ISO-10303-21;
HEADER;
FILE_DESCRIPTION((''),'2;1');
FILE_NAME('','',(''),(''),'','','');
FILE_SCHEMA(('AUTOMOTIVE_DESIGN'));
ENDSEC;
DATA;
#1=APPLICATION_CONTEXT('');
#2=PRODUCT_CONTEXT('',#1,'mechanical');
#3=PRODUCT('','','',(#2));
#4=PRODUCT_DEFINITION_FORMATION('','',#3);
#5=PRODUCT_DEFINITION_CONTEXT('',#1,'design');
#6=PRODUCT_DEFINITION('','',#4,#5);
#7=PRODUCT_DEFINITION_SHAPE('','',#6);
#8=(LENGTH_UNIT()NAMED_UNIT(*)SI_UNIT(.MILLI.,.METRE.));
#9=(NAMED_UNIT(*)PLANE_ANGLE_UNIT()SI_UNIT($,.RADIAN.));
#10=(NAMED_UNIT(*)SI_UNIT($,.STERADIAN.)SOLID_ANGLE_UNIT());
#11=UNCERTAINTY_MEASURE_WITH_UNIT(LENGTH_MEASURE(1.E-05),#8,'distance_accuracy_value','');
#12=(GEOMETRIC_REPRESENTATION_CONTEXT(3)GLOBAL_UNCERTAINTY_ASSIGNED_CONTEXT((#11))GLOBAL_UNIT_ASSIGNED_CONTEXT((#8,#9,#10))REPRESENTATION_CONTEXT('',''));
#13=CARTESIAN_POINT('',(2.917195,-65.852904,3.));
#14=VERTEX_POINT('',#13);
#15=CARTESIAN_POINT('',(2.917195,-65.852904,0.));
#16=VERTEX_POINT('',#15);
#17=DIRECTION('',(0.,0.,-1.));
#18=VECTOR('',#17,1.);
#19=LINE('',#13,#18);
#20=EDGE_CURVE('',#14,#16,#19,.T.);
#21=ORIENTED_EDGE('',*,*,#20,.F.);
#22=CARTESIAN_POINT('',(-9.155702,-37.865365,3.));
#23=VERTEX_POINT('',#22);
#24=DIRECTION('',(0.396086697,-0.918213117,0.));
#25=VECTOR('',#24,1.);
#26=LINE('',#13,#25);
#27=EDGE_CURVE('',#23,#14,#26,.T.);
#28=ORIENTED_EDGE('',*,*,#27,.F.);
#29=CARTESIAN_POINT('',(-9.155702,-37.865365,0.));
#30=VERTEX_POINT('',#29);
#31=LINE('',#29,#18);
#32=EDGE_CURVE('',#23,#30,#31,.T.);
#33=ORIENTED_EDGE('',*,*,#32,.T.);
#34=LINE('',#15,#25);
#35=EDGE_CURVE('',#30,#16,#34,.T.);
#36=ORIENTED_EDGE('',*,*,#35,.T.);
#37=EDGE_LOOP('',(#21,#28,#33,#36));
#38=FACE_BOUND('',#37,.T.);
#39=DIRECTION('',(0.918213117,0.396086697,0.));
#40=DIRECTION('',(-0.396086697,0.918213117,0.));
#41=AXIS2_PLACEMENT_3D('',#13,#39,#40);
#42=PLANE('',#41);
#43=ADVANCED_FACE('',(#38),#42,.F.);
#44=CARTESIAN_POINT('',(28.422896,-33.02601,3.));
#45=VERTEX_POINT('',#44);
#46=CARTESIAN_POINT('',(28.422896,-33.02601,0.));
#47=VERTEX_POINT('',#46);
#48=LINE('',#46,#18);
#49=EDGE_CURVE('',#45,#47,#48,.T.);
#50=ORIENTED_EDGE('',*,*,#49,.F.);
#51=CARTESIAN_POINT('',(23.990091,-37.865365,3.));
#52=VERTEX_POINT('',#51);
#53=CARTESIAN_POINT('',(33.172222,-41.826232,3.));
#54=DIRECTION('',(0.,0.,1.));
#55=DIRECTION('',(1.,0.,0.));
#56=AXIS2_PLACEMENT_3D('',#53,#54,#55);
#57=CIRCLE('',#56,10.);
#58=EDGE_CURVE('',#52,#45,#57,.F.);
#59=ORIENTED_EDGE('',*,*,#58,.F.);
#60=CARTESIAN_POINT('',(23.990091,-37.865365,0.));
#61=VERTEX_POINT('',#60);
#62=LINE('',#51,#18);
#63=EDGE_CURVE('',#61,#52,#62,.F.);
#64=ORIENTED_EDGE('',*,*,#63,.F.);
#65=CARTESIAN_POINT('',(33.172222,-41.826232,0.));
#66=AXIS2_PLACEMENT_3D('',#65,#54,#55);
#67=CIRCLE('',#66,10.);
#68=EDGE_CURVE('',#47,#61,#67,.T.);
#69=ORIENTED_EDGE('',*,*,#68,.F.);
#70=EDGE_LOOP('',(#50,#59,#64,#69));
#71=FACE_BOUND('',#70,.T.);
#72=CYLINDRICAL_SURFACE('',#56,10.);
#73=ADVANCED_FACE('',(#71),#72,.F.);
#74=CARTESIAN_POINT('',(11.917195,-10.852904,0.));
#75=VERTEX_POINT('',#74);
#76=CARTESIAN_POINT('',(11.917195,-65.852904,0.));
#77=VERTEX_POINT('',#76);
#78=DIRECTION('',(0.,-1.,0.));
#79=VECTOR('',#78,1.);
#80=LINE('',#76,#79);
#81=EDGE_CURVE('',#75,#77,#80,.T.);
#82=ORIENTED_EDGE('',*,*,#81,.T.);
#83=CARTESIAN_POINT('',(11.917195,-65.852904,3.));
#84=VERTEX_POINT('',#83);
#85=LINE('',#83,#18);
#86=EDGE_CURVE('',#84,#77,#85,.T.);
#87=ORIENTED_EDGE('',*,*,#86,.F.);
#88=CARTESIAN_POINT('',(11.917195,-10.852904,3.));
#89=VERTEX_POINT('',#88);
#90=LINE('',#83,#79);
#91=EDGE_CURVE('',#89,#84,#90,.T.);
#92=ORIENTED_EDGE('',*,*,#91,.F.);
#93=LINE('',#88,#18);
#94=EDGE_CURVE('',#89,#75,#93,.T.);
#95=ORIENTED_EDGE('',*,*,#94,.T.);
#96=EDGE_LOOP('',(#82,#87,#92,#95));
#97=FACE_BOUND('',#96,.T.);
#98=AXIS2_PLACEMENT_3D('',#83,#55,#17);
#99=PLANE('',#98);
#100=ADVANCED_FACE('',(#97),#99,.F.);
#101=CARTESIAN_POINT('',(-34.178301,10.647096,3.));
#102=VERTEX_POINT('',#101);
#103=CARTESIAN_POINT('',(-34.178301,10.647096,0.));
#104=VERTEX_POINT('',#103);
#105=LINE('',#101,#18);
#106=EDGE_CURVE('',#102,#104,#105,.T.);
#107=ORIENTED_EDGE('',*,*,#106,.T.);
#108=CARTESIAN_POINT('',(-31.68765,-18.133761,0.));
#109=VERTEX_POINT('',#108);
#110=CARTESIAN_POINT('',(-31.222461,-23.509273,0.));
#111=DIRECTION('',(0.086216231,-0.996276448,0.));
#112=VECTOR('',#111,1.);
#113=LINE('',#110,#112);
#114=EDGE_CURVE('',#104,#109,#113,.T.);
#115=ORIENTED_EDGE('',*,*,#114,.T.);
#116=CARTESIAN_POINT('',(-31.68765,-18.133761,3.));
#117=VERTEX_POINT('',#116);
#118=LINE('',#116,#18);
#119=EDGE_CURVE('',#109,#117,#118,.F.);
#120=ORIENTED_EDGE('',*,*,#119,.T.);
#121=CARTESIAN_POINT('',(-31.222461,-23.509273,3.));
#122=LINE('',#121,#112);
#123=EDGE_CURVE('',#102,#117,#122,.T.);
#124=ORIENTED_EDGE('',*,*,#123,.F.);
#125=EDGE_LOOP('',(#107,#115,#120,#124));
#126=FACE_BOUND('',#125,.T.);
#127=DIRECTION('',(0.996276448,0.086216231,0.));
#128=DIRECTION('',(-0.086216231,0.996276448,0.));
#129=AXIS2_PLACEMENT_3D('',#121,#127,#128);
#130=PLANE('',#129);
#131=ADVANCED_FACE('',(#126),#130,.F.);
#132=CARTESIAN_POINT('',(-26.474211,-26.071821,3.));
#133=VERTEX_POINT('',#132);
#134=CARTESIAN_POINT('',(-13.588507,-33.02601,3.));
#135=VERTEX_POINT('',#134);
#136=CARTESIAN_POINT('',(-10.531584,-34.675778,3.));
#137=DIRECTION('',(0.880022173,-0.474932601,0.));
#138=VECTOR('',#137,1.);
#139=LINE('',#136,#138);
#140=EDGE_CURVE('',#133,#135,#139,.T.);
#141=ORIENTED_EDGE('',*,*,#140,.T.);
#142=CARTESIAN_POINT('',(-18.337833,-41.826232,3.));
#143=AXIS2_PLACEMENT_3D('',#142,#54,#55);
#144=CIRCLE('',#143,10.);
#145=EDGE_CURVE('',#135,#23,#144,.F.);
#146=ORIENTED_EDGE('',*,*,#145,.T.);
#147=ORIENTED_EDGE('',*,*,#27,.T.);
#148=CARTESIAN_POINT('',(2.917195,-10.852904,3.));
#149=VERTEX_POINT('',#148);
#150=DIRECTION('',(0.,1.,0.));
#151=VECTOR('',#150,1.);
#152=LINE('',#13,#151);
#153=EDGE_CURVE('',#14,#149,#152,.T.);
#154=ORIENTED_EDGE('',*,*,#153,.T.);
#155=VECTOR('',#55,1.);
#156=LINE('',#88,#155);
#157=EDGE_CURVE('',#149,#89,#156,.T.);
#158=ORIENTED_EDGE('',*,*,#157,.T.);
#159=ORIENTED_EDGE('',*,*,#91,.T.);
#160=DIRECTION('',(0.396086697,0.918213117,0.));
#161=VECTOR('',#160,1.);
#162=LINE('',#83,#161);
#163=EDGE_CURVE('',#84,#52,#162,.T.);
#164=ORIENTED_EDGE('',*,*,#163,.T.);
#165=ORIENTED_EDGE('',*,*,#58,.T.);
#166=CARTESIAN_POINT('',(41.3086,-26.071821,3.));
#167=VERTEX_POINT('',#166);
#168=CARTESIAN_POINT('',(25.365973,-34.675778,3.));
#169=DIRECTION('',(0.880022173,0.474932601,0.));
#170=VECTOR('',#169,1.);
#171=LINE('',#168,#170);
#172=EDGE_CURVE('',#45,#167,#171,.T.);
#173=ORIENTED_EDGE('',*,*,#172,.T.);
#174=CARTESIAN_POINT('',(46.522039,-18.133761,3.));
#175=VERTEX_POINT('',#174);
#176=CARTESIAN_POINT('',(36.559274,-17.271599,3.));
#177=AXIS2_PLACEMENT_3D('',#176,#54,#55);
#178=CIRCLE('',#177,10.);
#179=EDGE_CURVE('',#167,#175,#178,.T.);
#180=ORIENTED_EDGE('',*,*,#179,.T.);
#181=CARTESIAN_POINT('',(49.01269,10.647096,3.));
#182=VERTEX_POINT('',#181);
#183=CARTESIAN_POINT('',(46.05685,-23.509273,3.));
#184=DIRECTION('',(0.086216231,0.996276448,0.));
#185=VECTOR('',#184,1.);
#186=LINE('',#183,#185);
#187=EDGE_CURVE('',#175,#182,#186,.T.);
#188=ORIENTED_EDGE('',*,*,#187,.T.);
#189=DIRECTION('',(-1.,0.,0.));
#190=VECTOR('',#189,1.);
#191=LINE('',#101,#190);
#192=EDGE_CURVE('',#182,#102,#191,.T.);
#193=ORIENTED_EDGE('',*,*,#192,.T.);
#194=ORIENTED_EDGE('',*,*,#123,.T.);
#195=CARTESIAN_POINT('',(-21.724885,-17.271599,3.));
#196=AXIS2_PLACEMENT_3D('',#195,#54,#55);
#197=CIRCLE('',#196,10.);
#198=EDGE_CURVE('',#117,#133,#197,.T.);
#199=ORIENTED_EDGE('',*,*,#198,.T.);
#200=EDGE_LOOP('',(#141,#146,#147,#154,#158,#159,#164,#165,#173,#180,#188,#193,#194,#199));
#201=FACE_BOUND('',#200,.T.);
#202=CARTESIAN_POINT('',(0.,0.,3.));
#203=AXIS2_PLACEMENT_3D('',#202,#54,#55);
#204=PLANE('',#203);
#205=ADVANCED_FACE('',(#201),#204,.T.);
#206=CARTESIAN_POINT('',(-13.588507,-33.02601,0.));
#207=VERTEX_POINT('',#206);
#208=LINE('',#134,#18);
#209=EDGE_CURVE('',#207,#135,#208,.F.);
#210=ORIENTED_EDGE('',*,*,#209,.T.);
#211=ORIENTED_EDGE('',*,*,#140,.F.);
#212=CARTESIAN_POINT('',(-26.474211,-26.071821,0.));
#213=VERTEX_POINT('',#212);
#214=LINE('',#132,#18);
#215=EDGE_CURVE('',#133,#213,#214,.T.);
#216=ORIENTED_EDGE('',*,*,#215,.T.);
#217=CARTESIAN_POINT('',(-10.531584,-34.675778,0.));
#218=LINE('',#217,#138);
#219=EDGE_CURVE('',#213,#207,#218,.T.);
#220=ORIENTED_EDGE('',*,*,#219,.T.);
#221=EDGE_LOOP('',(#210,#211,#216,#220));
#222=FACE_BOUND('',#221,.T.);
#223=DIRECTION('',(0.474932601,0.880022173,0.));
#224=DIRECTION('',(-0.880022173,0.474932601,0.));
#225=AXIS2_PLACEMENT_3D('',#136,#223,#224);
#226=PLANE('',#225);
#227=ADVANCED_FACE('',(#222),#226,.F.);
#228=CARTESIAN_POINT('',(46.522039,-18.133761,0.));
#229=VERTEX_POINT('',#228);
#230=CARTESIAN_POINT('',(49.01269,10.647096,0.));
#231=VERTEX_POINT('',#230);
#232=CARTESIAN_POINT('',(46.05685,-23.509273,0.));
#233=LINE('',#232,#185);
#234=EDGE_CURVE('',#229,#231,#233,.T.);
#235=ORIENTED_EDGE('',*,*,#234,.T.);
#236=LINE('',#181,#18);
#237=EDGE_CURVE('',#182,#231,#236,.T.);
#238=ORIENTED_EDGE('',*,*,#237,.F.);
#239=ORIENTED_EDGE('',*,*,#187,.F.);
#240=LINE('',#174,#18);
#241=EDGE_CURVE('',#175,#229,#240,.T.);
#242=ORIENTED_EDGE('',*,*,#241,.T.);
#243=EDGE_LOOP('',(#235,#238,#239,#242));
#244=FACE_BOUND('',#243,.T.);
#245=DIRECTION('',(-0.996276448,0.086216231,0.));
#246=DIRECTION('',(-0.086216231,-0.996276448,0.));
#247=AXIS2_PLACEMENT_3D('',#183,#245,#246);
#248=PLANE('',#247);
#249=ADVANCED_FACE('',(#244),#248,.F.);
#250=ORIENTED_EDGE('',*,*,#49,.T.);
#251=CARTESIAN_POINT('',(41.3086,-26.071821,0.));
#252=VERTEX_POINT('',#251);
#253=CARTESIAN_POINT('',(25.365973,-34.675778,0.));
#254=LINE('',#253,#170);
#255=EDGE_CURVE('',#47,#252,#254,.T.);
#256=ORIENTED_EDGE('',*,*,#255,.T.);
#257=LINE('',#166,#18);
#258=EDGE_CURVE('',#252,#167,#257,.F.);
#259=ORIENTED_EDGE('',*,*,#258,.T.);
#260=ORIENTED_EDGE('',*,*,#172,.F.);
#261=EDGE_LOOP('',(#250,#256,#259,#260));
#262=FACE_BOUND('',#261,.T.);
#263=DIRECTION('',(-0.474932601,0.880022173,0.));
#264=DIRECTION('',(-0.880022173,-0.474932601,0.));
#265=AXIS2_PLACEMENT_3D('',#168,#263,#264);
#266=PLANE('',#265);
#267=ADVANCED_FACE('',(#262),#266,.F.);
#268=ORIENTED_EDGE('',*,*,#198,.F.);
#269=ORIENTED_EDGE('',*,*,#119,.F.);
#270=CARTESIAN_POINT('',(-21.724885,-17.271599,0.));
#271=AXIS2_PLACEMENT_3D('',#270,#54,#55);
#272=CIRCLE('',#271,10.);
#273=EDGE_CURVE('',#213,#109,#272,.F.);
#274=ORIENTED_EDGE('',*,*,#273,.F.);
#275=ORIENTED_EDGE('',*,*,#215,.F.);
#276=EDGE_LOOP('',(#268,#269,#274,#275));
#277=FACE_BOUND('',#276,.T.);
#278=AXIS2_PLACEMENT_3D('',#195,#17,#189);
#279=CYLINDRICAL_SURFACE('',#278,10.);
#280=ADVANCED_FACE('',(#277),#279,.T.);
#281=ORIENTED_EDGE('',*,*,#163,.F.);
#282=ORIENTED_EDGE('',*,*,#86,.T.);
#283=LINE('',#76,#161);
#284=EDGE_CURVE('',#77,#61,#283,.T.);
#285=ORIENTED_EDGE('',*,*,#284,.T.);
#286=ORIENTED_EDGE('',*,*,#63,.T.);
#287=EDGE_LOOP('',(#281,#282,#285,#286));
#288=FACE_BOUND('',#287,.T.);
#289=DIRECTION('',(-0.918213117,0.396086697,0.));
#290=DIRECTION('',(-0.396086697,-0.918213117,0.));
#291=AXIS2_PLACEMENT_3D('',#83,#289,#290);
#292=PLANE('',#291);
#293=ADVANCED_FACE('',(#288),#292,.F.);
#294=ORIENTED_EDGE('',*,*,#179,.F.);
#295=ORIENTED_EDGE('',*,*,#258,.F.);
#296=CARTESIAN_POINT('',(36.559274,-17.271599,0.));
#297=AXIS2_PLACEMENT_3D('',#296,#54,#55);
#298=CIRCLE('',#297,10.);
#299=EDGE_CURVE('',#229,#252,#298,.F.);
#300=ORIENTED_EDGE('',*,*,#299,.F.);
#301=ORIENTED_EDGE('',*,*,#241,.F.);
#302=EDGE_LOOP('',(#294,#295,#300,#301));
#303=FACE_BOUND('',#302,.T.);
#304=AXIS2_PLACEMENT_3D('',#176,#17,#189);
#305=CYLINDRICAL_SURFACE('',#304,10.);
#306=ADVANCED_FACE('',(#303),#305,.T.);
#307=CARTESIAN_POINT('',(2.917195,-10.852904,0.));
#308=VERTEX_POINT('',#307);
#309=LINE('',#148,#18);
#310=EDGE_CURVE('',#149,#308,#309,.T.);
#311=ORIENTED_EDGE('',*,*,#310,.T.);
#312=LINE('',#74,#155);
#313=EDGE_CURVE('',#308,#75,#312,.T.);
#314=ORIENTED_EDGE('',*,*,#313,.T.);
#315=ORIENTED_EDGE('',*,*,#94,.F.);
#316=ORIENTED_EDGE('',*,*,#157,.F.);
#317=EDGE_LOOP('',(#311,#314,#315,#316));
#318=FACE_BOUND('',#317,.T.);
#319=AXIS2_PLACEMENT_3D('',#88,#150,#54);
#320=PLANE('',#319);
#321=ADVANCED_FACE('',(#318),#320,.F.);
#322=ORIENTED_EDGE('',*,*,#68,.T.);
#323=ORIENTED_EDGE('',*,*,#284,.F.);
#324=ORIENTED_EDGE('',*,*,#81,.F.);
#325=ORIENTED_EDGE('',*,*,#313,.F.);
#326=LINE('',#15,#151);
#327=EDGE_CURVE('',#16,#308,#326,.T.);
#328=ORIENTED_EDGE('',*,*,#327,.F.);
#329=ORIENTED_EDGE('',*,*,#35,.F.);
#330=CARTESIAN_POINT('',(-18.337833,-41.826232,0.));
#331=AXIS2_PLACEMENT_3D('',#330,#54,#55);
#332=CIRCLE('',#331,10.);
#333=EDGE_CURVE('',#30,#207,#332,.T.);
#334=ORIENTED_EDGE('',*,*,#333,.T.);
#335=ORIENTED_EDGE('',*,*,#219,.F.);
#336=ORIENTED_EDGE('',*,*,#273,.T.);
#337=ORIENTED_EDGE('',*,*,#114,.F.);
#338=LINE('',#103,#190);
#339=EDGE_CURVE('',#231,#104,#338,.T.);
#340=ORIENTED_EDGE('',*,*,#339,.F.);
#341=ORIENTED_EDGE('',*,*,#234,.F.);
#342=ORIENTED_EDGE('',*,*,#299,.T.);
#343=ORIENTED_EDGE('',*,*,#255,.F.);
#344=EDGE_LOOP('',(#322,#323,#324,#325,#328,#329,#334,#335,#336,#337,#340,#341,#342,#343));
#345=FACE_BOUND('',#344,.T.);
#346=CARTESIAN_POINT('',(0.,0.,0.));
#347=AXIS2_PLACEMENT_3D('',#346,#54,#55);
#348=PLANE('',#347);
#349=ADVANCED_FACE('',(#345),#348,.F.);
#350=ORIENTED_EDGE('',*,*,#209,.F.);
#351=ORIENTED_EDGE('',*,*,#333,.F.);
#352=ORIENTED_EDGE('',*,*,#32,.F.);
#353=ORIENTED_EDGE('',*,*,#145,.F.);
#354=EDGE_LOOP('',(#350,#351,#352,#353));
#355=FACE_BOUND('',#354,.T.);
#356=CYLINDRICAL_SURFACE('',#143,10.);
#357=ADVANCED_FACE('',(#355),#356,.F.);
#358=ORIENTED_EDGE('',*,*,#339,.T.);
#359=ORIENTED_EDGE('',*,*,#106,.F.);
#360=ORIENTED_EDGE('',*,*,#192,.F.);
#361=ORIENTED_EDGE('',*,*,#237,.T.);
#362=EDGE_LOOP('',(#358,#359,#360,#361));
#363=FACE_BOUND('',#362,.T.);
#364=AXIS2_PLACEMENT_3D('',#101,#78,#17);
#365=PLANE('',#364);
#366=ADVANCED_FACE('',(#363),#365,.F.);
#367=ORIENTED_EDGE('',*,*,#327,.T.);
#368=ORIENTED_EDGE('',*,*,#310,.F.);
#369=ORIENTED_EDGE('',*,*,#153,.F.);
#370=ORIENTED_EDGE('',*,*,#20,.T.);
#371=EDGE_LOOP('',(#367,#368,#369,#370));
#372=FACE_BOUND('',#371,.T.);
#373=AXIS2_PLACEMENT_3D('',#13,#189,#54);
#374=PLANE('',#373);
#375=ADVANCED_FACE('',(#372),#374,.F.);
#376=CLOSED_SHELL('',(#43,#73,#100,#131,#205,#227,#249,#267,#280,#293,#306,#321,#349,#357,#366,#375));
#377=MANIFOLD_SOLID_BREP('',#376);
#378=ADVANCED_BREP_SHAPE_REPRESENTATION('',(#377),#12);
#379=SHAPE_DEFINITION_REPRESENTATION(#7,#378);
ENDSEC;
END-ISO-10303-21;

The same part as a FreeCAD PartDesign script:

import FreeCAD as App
import Part
import Sketcher

V = App.Vector


def edges_at(feature, points):
    """Names of the edges that pass closest to the given points."""
    edges = feature.Shape.Edges
    near = lambda p: min(range(len(edges)), key=lambda i: edges[i].distToShape(Part.Vertex(*p))[0])
    return sorted({f"Edge{near(p) + 1}" for p in points})


def add_polygon(sketch, points):
    """Adds a closed chain of lines whose ends are joined by coincident constraints."""
    first, n = sketch.GeometryCount, len(points)
    for a, b in zip(points, points[1:] + points[:1]):
        sketch.addGeometry(Part.LineSegment(App.Vector(*a, 0), App.Vector(*b, 0)), False)
    for i in range(n):
        sketch.addConstraint(Sketcher.Constraint("Coincident", first + i, 2, first + (i + 1) % n, 1))

doc = App.newDocument("Part")
params = doc.addObject("Spreadsheet::Sheet", "Params")
for row, (alias, value) in enumerate([
    ("sketch1_width", "9 mm"),
    ("sketch1_height", "55 mm"),
    ("pad1_length", "3 mm"),
    ("fillet_radius", "10 mm"),
], start=1):
    params.set(f"A{row}", alias)
    params.set(f"B{row}", "=" + value)
    params.setAlias(f"B{row}", alias)

body = doc.addObject("PartDesign::Body", "Body")

sketch1 = doc.addObject("Sketcher::SketchObject", "Sketch")
body.addObject(sketch1)
sketch1.AttachmentSupport = (doc.XY_Plane, [""])
sketch1.MapMode = "FlatFace"
add_polygon(sketch1, [(12, -11), (12, -66), (25, -35), (46, -24), (49, 11), (-34, 11), (-31, -24), (-11, -35), (3, -66), (3, -11)])
sketch1.addConstraint([
    Sketcher.Constraint("Vertical", 0),
    Sketcher.Constraint("Horizontal", 4),
    Sketcher.Constraint("Vertical", 8),
    Sketcher.Constraint("Horizontal", 9),
    Sketcher.Constraint("Horizontal", 2, 2, 5, 2),
    Sketcher.Constraint("Horizontal", 1, 2, 6, 2),
    Sketcher.Constraint("Horizontal", 0, 2, 7, 2),
    Sketcher.Constraint("Equal", 3, 5),
    Sketcher.Constraint("Equal", 2, 6),
    Sketcher.Constraint("Equal", 1, 7),
    Sketcher.Constraint("DistanceX", 9, 1, 9, 2, 9.0),
    Sketcher.Constraint("DistanceY", 0, 2, 0, 1, 55.0),
    Sketcher.Constraint("DistanceY", 0, 2, 3, 2, 76.5),
    Sketcher.Constraint("DistanceX", 4, 2, 4, 1, 83.190991),
    Sketcher.Constraint("DistanceX", 4, 2, -1, 1, 34.178301),
    Sketcher.Constraint("Distance", 1, 33.954128),
    Sketcher.Constraint("Distance", 2, 23.511768),
    Sketcher.Constraint("DistanceY", 1, 2, -1, 1, 34.675778),
    Sketcher.Constraint("DistanceX", -1, 1, 2, 2, 46.05685),
    Sketcher.Constraint("DistanceX", 0, 2, 1, 2, 13.448779),
])
sketch1.setExpression("Constraints[20]", "Params.sketch1_width")
sketch1.setExpression("Constraints[21]", "Params.sketch1_height")
pad1 = doc.addObject("PartDesign::Pad", "Pad")
body.addObject(pad1)
pad1.Profile = sketch1
pad1.setExpression("Length", "Params.pad1_length")
doc.recompute()

fillet = doc.addObject("PartDesign::Fillet", "Fillet")
body.addObject(fillet)
fillet.Base = (pad1, edges_at(pad1, [
    (-10.532, -34.676, 1.5),
    (-31.222, -23.509, 1.5),
    (46.057, -23.509, 1.5),
    (25.366, -34.676, 1.5),
]))
fillet.setExpression("Radius", "Params.fillet_radius")

doc.recompute()
